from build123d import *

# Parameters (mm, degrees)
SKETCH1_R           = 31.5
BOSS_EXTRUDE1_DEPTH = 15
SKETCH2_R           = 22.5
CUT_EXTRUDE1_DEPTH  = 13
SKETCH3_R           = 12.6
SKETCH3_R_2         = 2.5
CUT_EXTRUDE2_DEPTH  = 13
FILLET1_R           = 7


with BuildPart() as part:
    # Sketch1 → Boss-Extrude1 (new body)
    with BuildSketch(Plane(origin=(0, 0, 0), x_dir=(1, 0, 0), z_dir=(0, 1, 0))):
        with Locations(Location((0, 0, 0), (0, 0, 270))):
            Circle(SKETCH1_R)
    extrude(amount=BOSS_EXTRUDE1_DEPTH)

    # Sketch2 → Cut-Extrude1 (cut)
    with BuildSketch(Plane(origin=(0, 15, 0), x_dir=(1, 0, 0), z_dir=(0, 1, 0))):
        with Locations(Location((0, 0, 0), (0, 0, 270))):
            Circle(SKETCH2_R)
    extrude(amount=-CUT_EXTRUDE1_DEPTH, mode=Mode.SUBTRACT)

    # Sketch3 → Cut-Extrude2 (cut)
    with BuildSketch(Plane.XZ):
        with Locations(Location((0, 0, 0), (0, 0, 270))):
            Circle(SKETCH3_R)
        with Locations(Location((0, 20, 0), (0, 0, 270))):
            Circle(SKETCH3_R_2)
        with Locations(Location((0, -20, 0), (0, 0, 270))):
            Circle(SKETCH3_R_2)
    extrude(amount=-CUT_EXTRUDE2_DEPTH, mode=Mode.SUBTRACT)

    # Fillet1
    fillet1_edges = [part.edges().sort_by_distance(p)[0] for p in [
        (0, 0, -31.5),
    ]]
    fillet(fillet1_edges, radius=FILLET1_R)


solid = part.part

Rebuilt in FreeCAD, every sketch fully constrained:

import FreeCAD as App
import Part
import Sketcher

V = App.Vector
Q = App.Units.Quantity


def edges_at(feature, points):
    """Names of the edges that pass closest to the given points."""
    edges = feature.Shape.Edges
    near = lambda p: min(range(len(edges)), key=lambda i: edges[i].distToShape(Part.Vertex(*p))[0])
    return sorted({f"Edge{near(p) + 1}" for p in points})

doc = App.newDocument("Part")
body = doc.addObject("PartDesign::Body", "Body")

sketch1 = body.newObject("Sketcher::SketchObject", "Sketch")
sketch1.AttachmentSupport = (doc.getObject("XZ_Plane"), [""])
sketch1.MapMode = "FlatFace"
sketch1.addGeometry(Part.Circle(V(0, 0, 0), V(0, 0, 1), 32), False)
sketch1.addConstraint([
    Sketcher.Constraint("Coincident", 0, 3, -1, 1),
    Sketcher.Constraint("Diameter", 0, Q("63 mm")),
])
pad1 = body.newObject("PartDesign::Pad", "Pad")
pad1.Profile = sketch1
pad1.Length = 15
pad1.Reversed = True

sketch2 = body.newObject("Sketcher::SketchObject", "Sketch001")
sketch2.AttachmentSupport = (doc.getObject("XZ_Plane"), [""])
sketch2.MapMode = "FlatFace"
sketch2.AttachmentOffset = App.Placement(V(0, 0, -15), App.Rotation())
sketch2.addGeometry(Part.Circle(V(0, 0, 0), V(0, 0, 1), 22), False)
sketch2.addConstraint([
    Sketcher.Constraint("Coincident", 0, 3, -1, 1),
    Sketcher.Constraint("Diameter", 0, Q("45 mm")),
])
pocket1 = body.newObject("PartDesign::Pocket", "Pocket")
pocket1.Profile = sketch2
pocket1.Length = 13
pocket1.Reversed = True

sketch3 = body.newObject("Sketcher::SketchObject", "Sketch002")
sketch3.AttachmentSupport = (doc.getObject("XZ_Plane"), [""])
sketch3.MapMode = "FlatFace"
sketch3.addGeometry([
    Part.Circle(V(0, 0, 0), V(0, 0, 1), 12.6),
    Part.Circle(V(0, 20, 0), V(0, 0, 1), 2.5),
    Part.Circle(V(0, -20, 0), V(0, 0, 1), 2.5),
], False)
sketch3.addConstraint([
    Sketcher.Constraint("Coincident", 0, 3, -1, 1),
    Sketcher.Constraint("Equal", 1, 2),
    Sketcher.Constraint("Symmetric", 1, 3, 2, 3, -1, 1),
    Sketcher.Constraint("PointOnObject", 1, 3, -2),
    Sketcher.Constraint("Diameter", 1, Q("5 mm")),
    Sketcher.Constraint("Diameter", 0, Q("25.2 mm")),
    Sketcher.Constraint("DistanceY", -1, 1, 1, 3, Q("20 mm")),
])
pocket2 = body.newObject("PartDesign::Pocket", "Pocket001")
pocket2.Profile = sketch3
pocket2.Length = 13
doc.recompute()

fillet = body.newObject("PartDesign::Fillet", "Fillet")
fillet.Base = (pocket2, edges_at(pocket2, [(0, 0, -31.5)]))
fillet.Radius = 7

doc.recompute()
